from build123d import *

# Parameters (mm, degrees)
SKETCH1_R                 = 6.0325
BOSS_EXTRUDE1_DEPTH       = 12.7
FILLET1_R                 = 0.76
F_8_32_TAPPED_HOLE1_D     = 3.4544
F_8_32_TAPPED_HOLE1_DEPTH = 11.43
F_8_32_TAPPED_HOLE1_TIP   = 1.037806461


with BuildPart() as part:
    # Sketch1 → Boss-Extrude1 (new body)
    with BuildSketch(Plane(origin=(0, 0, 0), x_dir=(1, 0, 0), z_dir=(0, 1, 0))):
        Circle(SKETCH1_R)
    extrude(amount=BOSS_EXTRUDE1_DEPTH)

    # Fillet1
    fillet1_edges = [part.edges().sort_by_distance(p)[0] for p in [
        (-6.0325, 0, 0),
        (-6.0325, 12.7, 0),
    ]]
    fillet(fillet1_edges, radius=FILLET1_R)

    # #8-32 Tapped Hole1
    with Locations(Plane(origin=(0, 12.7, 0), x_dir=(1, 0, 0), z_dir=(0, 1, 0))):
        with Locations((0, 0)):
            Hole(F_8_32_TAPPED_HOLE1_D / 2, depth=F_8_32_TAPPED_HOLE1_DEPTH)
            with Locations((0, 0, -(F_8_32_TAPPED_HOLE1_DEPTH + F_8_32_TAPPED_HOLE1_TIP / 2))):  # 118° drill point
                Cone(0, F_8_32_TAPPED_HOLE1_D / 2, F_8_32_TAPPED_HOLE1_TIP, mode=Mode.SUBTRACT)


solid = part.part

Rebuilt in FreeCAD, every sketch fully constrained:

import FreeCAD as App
import Part
import Sketcher

V = App.Vector
Q = App.Units.Quantity


def edges_at(feature, points):
    """Names of the edges that pass closest to the given points."""
    edges = feature.Shape.Edges
    near = lambda p: min(range(len(edges)), key=lambda i: edges[i].distToShape(Part.Vertex(*p))[0])
    return sorted({f"Edge{near(p) + 1}" for p in points})

doc = App.newDocument("Part")
body = doc.addObject("PartDesign::Body", "Body")

sketch1 = body.newObject("Sketcher::SketchObject", "Sketch")
sketch1.AttachmentSupport = (doc.getObject("XZ_Plane"), [""])
sketch1.MapMode = "FlatFace"
sketch1.addGeometry(Part.Circle(V(0, 0, 0), V(0, 0, 1), 6.0325), False)
sketch1.addConstraint([
    Sketcher.Constraint("Coincident", 0, 3, -1, 1),
    Sketcher.Constraint("Diameter", 0, Q("0.475 in")),
])
pad1 = body.newObject("PartDesign::Pad", "Pad")
pad1.Profile = sketch1
pad1.Length = Q("0.5 in")
pad1.Reversed = True
doc.recompute()

fillet = body.newObject("PartDesign::Fillet", "Fillet")
fillet.Base = (pad1, edges_at(pad1, [(-6.032, 0, 0), (-6.032, 12.7, 0)]))
fillet.Radius = 0.76

sketch2 = body.newObject("Sketcher::SketchObject", "Sketch001")
sketch2.AttachmentSupport = (doc.getObject("XZ_Plane"), [""])
sketch2.MapMode = "FlatFace"
sketch2.AttachmentOffset = App.Placement(V(0, 0, -0.5 * 25.4), App.Rotation())
sketch2.addGeometry(Part.Circle(V(0, 0, 0), V(0, 0, 1), 1.7272), False)
sketch2.addConstraint([
    Sketcher.Constraint("Coincident", 0, 3, -1, 1),
    Sketcher.Constraint("Diameter", 0, Q("0.136 in")),
])
doc.recompute()
hole = body.newObject("PartDesign::Hole", "Hole")
hole.Profile = sketch2
hole.ThreadType = "None"
hole.Diameter = Q("0.136 in")
hole.DepthType = "Dimension"
hole.Depth = Q("0.45 in")
hole.DrillPoint = "Angled"
hole.DrillPointAngle = 118
hole.Reversed = True

doc.recompute()
